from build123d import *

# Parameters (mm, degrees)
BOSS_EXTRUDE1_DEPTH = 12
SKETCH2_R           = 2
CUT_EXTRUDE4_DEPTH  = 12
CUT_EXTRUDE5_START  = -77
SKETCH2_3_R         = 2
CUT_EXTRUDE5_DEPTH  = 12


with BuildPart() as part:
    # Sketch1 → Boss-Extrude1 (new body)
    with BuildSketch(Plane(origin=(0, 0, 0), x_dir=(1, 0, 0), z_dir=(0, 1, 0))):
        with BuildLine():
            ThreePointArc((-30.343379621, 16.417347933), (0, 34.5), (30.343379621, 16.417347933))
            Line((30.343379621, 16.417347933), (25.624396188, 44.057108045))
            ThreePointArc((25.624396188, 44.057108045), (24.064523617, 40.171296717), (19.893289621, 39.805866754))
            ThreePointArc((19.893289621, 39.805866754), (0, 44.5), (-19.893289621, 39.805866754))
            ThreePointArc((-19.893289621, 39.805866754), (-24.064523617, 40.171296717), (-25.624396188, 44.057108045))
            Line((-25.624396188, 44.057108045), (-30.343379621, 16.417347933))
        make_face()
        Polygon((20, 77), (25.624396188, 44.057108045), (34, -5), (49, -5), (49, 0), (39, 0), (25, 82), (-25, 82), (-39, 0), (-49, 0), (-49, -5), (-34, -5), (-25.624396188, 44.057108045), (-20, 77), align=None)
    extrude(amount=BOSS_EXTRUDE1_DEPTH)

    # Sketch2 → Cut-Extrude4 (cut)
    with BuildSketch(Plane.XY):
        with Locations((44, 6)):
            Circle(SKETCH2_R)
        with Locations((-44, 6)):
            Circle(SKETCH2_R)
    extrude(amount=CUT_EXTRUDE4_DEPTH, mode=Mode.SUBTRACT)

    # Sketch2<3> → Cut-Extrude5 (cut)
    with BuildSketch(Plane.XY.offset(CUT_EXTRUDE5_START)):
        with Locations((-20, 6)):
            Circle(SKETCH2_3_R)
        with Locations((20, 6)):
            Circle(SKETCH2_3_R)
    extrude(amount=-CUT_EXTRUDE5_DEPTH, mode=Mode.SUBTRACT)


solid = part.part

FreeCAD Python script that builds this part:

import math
import FreeCAD as App
import Part
import Sketcher

V = App.Vector

doc = App.newDocument("Part")
body = doc.addObject("PartDesign::Body", "Body")

# Sketch on XZ plane
sketch1 = body.newObject("Sketcher::SketchObject", "Sketch")
sketch1.AttachmentSupport = (doc.getObject("XZ_Plane"), [""])
sketch1.MapMode = "FlatFace"
sketch1.addGeometry([
    Part.ArcOfCircle(Part.Circle(V(0, 0, 0), V(0, 0, 1), 34.5), math.radians(-151.584305), math.radians(-28.415695)),  # 0
    Part.LineSegment(V(30.34338, -16.417348, 0), V(34, 5, 0)),  # 1
    Part.LineSegment(V(34, 5, 0), V(49, 5, 0)),  # 2
    Part.LineSegment(V(49, 5, 0), V(49, 0, 0)),  # 3
    Part.LineSegment(V(49, 0, 0), V(39, 0, 0)),  # 4
    Part.LineSegment(V(39, 0, 0), V(25, -82, 0)),  # 5
    Part.LineSegment(V(25, -82, 0), V(-25, -82, 0)),  # 6
    Part.LineSegment(V(-25, -82, 0), V(-39, 0, 0)),  # 7
    Part.LineSegment(V(-39, 0, 0), V(-49, 0, 0)),  # 8
    Part.LineSegment(V(-49, 0, 0), V(-49, 5, 0)),  # 9
    Part.LineSegment(V(-49, 5, 0), V(-34, 5, 0)),  # 10
    Part.LineSegment(V(-34, 5, 0), V(-30.34338, -16.417348, 0)),  # 11
    Part.ArcOfCircle(Part.Circle(V(21.68145, -43.383922, 0), V(0, 0, 1), 4), math.radians(-9.688787), math.radians(116.553945)),  # 12
    Part.ArcOfCircle(Part.Circle(V(0, 0, 0), V(0, 0, 1), 44.5), math.radians(-116.553945), math.radians(-63.446055)),  # 13
    Part.ArcOfCircle(Part.Circle(V(-21.68145, -43.383922, 0), V(0, 0, 1), 4), math.radians(63.446055), math.radians(189.688787)),  # 14
    Part.LineSegment(V(-25.624396, -44.057108, 0), V(-20, -77, 0)),  # 15
    Part.LineSegment(V(-20, -77, 0), V(20, -77, 0)),  # 16
    Part.LineSegment(V(20, -77, 0), V(25.624396, -44.057108, 0)),  # 17
], False)
sketch1.addConstraint([
    Sketcher.Constraint("Coincident", 0, 2, 1, 1),
    Sketcher.Constraint("Coincident", 1, 2, 2, 1),
    Sketcher.Constraint("Coincident", 2, 2, 3, 1),
    Sketcher.Constraint("Coincident", 3, 2, 4, 1),
    Sketcher.Constraint("Coincident", 4, 2, 5, 1),
    Sketcher.Constraint("Coincident", 5, 2, 6, 1),
    Sketcher.Constraint("Coincident", 6, 2, 7, 1),
    Sketcher.Constraint("Coincident", 7, 2, 8, 1),
    Sketcher.Constraint("Coincident", 8, 2, 9, 1),
    Sketcher.Constraint("Coincident", 9, 2, 10, 1),
    Sketcher.Constraint("Coincident", 10, 2, 11, 1),
    Sketcher.Constraint("Coincident", 11, 2, 0, 1),
    Sketcher.Constraint("Tangent", 12, 2, 13, 2),
    Sketcher.Constraint("Tangent", 13, 1, 14, 1),
    Sketcher.Constraint("Tangent", 14, 2, 15, 1),
    Sketcher.Constraint("Coincident", 15, 2, 16, 1),
    Sketcher.Constraint("Coincident", 16, 2, 17, 1),
    Sketcher.Constraint("Tangent", 17, 2, 12, 1),
    Sketcher.Constraint("Horizontal", 2),
    Sketcher.Constraint("Vertical", 3),
    Sketcher.Constraint("Horizontal", 4),
    Sketcher.Constraint("Horizontal", 6),
    Sketcher.Constraint("Horizontal", 8),
    Sketcher.Constraint("Vertical", 9),
    Sketcher.Constraint("Horizontal", 10),
    Sketcher.Constraint("Horizontal", 16),
    Sketcher.Constraint("Coincident", 0, 3, -1, 1),
    Sketcher.Constraint("Coincident", 13, 3, -1, 1),
    Sketcher.Constraint("Equal", 12, 14),
    Sketcher.Constraint("Symmetric", 4, 2, 7, 2, -1, 1),
    Sketcher.Constraint("Symmetric", 3, 2, 8, 2, -2),
    Sketcher.Constraint("Symmetric", 1, 2, 10, 2, -2),
    Sketcher.Constraint("Symmetric", 14, 2, 17, 2, -2),
    Sketcher.Constraint("Parallel", 1, 5),
    Sketcher.Constraint("Parallel", 7, 11),
    Sketcher.Constraint("Parallel", 11, 15),
    Sketcher.Constraint("Parallel", 5, 17),
    Sketcher.Constraint("Radius", 12, 4.0),
    Sketcher.Constraint("Radius", 0, 34.5),
    Sketcher.Constraint("Radius", 13, 44.5),
    Sketcher.Constraint("DistanceX", 2, 1, 2, 2, 15.0),
    Sketcher.Constraint("DistanceX", 4, 2, 4, 1, 10.0),
    Sketcher.Constraint("DistanceX", 6, 2, 6, 1, 50.0),
    Sketcher.Constraint("DistanceX", 16, 1, 16, 2, 40.0),
    Sketcher.Constraint("DistanceY", 3, 2, 3, 1, 5.0),
    Sketcher.Constraint("DistanceX", -1, 1, 1, 2, 34.0),
    Sketcher.Constraint("DistanceY", 5, 2, -1, 1, 82.0),
    Sketcher.Constraint("DistanceY", 15, 2, -1, 1, 77.0),
])
pad1 = body.newObject("PartDesign::Pad", "Pad")
pad1.Profile = sketch1
pad1.Length = 12
pad1.Reversed = True

# Sketch on XY plane
sketch2 = body.newObject("Sketcher::SketchObject", "Sketch001")
sketch2.AttachmentSupport = (doc.getObject("XY_Plane"), [""])
sketch2.MapMode = "FlatFace"
sketch2.addGeometry([
    Part.Circle(V(44, 6, 0), V(0, 0, 1), 2),
    Part.Circle(V(-44, 6, 0), V(0, 0, 1), 2),
], False)
sketch2.addConstraint([
    Sketcher.Constraint("Equal", 0, 1),
    Sketcher.Constraint("Symmetric", 0, 3, 1, 3, -2),
    Sketcher.Constraint("Diameter", 0, 4.0),
    Sketcher.Constraint("DistanceX", -1, 1, 0, 3, 44.0),
    Sketcher.Constraint("DistanceY", -1, 1, 0, 3, 6.0),
])
pocket1 = body.newObject("PartDesign::Pocket", "Pocket")
pocket1.Profile = sketch2
pocket1.Length = 12
pocket1.Reversed = True

# Sketch on XY plane
sketch3 = body.newObject("Sketcher::SketchObject", "Sketch002")
sketch3.AttachmentSupport = (doc.getObject("XY_Plane"), [""])
sketch3.MapMode = "FlatFace"
sketch3.AttachmentOffset = App.Placement(V(0, 0, -77), App.Rotation())
sketch3.addGeometry([
    Part.Circle(V(-20, 6, 0), V(0, 0, 1), 2),
    Part.Circle(V(20, 6, 0), V(0, 0, 1), 2),
], False)
sketch3.addConstraint([
    Sketcher.Constraint("Equal", 0, 1),
    Sketcher.Constraint("Symmetric", 0, 3, 1, 3, -2),
    Sketcher.Constraint("Diameter", 0, 4.0),
    Sketcher.Constraint("DistanceX", 0, 3, -1, 1, 20.0),
    Sketcher.Constraint("DistanceY", -1, 1, 0, 3, 6.0),
])
pocket2 = body.newObject("PartDesign::Pocket", "Pocket001")
pocket2.Profile = sketch3
pocket2.Length = 12

doc.recompute()
